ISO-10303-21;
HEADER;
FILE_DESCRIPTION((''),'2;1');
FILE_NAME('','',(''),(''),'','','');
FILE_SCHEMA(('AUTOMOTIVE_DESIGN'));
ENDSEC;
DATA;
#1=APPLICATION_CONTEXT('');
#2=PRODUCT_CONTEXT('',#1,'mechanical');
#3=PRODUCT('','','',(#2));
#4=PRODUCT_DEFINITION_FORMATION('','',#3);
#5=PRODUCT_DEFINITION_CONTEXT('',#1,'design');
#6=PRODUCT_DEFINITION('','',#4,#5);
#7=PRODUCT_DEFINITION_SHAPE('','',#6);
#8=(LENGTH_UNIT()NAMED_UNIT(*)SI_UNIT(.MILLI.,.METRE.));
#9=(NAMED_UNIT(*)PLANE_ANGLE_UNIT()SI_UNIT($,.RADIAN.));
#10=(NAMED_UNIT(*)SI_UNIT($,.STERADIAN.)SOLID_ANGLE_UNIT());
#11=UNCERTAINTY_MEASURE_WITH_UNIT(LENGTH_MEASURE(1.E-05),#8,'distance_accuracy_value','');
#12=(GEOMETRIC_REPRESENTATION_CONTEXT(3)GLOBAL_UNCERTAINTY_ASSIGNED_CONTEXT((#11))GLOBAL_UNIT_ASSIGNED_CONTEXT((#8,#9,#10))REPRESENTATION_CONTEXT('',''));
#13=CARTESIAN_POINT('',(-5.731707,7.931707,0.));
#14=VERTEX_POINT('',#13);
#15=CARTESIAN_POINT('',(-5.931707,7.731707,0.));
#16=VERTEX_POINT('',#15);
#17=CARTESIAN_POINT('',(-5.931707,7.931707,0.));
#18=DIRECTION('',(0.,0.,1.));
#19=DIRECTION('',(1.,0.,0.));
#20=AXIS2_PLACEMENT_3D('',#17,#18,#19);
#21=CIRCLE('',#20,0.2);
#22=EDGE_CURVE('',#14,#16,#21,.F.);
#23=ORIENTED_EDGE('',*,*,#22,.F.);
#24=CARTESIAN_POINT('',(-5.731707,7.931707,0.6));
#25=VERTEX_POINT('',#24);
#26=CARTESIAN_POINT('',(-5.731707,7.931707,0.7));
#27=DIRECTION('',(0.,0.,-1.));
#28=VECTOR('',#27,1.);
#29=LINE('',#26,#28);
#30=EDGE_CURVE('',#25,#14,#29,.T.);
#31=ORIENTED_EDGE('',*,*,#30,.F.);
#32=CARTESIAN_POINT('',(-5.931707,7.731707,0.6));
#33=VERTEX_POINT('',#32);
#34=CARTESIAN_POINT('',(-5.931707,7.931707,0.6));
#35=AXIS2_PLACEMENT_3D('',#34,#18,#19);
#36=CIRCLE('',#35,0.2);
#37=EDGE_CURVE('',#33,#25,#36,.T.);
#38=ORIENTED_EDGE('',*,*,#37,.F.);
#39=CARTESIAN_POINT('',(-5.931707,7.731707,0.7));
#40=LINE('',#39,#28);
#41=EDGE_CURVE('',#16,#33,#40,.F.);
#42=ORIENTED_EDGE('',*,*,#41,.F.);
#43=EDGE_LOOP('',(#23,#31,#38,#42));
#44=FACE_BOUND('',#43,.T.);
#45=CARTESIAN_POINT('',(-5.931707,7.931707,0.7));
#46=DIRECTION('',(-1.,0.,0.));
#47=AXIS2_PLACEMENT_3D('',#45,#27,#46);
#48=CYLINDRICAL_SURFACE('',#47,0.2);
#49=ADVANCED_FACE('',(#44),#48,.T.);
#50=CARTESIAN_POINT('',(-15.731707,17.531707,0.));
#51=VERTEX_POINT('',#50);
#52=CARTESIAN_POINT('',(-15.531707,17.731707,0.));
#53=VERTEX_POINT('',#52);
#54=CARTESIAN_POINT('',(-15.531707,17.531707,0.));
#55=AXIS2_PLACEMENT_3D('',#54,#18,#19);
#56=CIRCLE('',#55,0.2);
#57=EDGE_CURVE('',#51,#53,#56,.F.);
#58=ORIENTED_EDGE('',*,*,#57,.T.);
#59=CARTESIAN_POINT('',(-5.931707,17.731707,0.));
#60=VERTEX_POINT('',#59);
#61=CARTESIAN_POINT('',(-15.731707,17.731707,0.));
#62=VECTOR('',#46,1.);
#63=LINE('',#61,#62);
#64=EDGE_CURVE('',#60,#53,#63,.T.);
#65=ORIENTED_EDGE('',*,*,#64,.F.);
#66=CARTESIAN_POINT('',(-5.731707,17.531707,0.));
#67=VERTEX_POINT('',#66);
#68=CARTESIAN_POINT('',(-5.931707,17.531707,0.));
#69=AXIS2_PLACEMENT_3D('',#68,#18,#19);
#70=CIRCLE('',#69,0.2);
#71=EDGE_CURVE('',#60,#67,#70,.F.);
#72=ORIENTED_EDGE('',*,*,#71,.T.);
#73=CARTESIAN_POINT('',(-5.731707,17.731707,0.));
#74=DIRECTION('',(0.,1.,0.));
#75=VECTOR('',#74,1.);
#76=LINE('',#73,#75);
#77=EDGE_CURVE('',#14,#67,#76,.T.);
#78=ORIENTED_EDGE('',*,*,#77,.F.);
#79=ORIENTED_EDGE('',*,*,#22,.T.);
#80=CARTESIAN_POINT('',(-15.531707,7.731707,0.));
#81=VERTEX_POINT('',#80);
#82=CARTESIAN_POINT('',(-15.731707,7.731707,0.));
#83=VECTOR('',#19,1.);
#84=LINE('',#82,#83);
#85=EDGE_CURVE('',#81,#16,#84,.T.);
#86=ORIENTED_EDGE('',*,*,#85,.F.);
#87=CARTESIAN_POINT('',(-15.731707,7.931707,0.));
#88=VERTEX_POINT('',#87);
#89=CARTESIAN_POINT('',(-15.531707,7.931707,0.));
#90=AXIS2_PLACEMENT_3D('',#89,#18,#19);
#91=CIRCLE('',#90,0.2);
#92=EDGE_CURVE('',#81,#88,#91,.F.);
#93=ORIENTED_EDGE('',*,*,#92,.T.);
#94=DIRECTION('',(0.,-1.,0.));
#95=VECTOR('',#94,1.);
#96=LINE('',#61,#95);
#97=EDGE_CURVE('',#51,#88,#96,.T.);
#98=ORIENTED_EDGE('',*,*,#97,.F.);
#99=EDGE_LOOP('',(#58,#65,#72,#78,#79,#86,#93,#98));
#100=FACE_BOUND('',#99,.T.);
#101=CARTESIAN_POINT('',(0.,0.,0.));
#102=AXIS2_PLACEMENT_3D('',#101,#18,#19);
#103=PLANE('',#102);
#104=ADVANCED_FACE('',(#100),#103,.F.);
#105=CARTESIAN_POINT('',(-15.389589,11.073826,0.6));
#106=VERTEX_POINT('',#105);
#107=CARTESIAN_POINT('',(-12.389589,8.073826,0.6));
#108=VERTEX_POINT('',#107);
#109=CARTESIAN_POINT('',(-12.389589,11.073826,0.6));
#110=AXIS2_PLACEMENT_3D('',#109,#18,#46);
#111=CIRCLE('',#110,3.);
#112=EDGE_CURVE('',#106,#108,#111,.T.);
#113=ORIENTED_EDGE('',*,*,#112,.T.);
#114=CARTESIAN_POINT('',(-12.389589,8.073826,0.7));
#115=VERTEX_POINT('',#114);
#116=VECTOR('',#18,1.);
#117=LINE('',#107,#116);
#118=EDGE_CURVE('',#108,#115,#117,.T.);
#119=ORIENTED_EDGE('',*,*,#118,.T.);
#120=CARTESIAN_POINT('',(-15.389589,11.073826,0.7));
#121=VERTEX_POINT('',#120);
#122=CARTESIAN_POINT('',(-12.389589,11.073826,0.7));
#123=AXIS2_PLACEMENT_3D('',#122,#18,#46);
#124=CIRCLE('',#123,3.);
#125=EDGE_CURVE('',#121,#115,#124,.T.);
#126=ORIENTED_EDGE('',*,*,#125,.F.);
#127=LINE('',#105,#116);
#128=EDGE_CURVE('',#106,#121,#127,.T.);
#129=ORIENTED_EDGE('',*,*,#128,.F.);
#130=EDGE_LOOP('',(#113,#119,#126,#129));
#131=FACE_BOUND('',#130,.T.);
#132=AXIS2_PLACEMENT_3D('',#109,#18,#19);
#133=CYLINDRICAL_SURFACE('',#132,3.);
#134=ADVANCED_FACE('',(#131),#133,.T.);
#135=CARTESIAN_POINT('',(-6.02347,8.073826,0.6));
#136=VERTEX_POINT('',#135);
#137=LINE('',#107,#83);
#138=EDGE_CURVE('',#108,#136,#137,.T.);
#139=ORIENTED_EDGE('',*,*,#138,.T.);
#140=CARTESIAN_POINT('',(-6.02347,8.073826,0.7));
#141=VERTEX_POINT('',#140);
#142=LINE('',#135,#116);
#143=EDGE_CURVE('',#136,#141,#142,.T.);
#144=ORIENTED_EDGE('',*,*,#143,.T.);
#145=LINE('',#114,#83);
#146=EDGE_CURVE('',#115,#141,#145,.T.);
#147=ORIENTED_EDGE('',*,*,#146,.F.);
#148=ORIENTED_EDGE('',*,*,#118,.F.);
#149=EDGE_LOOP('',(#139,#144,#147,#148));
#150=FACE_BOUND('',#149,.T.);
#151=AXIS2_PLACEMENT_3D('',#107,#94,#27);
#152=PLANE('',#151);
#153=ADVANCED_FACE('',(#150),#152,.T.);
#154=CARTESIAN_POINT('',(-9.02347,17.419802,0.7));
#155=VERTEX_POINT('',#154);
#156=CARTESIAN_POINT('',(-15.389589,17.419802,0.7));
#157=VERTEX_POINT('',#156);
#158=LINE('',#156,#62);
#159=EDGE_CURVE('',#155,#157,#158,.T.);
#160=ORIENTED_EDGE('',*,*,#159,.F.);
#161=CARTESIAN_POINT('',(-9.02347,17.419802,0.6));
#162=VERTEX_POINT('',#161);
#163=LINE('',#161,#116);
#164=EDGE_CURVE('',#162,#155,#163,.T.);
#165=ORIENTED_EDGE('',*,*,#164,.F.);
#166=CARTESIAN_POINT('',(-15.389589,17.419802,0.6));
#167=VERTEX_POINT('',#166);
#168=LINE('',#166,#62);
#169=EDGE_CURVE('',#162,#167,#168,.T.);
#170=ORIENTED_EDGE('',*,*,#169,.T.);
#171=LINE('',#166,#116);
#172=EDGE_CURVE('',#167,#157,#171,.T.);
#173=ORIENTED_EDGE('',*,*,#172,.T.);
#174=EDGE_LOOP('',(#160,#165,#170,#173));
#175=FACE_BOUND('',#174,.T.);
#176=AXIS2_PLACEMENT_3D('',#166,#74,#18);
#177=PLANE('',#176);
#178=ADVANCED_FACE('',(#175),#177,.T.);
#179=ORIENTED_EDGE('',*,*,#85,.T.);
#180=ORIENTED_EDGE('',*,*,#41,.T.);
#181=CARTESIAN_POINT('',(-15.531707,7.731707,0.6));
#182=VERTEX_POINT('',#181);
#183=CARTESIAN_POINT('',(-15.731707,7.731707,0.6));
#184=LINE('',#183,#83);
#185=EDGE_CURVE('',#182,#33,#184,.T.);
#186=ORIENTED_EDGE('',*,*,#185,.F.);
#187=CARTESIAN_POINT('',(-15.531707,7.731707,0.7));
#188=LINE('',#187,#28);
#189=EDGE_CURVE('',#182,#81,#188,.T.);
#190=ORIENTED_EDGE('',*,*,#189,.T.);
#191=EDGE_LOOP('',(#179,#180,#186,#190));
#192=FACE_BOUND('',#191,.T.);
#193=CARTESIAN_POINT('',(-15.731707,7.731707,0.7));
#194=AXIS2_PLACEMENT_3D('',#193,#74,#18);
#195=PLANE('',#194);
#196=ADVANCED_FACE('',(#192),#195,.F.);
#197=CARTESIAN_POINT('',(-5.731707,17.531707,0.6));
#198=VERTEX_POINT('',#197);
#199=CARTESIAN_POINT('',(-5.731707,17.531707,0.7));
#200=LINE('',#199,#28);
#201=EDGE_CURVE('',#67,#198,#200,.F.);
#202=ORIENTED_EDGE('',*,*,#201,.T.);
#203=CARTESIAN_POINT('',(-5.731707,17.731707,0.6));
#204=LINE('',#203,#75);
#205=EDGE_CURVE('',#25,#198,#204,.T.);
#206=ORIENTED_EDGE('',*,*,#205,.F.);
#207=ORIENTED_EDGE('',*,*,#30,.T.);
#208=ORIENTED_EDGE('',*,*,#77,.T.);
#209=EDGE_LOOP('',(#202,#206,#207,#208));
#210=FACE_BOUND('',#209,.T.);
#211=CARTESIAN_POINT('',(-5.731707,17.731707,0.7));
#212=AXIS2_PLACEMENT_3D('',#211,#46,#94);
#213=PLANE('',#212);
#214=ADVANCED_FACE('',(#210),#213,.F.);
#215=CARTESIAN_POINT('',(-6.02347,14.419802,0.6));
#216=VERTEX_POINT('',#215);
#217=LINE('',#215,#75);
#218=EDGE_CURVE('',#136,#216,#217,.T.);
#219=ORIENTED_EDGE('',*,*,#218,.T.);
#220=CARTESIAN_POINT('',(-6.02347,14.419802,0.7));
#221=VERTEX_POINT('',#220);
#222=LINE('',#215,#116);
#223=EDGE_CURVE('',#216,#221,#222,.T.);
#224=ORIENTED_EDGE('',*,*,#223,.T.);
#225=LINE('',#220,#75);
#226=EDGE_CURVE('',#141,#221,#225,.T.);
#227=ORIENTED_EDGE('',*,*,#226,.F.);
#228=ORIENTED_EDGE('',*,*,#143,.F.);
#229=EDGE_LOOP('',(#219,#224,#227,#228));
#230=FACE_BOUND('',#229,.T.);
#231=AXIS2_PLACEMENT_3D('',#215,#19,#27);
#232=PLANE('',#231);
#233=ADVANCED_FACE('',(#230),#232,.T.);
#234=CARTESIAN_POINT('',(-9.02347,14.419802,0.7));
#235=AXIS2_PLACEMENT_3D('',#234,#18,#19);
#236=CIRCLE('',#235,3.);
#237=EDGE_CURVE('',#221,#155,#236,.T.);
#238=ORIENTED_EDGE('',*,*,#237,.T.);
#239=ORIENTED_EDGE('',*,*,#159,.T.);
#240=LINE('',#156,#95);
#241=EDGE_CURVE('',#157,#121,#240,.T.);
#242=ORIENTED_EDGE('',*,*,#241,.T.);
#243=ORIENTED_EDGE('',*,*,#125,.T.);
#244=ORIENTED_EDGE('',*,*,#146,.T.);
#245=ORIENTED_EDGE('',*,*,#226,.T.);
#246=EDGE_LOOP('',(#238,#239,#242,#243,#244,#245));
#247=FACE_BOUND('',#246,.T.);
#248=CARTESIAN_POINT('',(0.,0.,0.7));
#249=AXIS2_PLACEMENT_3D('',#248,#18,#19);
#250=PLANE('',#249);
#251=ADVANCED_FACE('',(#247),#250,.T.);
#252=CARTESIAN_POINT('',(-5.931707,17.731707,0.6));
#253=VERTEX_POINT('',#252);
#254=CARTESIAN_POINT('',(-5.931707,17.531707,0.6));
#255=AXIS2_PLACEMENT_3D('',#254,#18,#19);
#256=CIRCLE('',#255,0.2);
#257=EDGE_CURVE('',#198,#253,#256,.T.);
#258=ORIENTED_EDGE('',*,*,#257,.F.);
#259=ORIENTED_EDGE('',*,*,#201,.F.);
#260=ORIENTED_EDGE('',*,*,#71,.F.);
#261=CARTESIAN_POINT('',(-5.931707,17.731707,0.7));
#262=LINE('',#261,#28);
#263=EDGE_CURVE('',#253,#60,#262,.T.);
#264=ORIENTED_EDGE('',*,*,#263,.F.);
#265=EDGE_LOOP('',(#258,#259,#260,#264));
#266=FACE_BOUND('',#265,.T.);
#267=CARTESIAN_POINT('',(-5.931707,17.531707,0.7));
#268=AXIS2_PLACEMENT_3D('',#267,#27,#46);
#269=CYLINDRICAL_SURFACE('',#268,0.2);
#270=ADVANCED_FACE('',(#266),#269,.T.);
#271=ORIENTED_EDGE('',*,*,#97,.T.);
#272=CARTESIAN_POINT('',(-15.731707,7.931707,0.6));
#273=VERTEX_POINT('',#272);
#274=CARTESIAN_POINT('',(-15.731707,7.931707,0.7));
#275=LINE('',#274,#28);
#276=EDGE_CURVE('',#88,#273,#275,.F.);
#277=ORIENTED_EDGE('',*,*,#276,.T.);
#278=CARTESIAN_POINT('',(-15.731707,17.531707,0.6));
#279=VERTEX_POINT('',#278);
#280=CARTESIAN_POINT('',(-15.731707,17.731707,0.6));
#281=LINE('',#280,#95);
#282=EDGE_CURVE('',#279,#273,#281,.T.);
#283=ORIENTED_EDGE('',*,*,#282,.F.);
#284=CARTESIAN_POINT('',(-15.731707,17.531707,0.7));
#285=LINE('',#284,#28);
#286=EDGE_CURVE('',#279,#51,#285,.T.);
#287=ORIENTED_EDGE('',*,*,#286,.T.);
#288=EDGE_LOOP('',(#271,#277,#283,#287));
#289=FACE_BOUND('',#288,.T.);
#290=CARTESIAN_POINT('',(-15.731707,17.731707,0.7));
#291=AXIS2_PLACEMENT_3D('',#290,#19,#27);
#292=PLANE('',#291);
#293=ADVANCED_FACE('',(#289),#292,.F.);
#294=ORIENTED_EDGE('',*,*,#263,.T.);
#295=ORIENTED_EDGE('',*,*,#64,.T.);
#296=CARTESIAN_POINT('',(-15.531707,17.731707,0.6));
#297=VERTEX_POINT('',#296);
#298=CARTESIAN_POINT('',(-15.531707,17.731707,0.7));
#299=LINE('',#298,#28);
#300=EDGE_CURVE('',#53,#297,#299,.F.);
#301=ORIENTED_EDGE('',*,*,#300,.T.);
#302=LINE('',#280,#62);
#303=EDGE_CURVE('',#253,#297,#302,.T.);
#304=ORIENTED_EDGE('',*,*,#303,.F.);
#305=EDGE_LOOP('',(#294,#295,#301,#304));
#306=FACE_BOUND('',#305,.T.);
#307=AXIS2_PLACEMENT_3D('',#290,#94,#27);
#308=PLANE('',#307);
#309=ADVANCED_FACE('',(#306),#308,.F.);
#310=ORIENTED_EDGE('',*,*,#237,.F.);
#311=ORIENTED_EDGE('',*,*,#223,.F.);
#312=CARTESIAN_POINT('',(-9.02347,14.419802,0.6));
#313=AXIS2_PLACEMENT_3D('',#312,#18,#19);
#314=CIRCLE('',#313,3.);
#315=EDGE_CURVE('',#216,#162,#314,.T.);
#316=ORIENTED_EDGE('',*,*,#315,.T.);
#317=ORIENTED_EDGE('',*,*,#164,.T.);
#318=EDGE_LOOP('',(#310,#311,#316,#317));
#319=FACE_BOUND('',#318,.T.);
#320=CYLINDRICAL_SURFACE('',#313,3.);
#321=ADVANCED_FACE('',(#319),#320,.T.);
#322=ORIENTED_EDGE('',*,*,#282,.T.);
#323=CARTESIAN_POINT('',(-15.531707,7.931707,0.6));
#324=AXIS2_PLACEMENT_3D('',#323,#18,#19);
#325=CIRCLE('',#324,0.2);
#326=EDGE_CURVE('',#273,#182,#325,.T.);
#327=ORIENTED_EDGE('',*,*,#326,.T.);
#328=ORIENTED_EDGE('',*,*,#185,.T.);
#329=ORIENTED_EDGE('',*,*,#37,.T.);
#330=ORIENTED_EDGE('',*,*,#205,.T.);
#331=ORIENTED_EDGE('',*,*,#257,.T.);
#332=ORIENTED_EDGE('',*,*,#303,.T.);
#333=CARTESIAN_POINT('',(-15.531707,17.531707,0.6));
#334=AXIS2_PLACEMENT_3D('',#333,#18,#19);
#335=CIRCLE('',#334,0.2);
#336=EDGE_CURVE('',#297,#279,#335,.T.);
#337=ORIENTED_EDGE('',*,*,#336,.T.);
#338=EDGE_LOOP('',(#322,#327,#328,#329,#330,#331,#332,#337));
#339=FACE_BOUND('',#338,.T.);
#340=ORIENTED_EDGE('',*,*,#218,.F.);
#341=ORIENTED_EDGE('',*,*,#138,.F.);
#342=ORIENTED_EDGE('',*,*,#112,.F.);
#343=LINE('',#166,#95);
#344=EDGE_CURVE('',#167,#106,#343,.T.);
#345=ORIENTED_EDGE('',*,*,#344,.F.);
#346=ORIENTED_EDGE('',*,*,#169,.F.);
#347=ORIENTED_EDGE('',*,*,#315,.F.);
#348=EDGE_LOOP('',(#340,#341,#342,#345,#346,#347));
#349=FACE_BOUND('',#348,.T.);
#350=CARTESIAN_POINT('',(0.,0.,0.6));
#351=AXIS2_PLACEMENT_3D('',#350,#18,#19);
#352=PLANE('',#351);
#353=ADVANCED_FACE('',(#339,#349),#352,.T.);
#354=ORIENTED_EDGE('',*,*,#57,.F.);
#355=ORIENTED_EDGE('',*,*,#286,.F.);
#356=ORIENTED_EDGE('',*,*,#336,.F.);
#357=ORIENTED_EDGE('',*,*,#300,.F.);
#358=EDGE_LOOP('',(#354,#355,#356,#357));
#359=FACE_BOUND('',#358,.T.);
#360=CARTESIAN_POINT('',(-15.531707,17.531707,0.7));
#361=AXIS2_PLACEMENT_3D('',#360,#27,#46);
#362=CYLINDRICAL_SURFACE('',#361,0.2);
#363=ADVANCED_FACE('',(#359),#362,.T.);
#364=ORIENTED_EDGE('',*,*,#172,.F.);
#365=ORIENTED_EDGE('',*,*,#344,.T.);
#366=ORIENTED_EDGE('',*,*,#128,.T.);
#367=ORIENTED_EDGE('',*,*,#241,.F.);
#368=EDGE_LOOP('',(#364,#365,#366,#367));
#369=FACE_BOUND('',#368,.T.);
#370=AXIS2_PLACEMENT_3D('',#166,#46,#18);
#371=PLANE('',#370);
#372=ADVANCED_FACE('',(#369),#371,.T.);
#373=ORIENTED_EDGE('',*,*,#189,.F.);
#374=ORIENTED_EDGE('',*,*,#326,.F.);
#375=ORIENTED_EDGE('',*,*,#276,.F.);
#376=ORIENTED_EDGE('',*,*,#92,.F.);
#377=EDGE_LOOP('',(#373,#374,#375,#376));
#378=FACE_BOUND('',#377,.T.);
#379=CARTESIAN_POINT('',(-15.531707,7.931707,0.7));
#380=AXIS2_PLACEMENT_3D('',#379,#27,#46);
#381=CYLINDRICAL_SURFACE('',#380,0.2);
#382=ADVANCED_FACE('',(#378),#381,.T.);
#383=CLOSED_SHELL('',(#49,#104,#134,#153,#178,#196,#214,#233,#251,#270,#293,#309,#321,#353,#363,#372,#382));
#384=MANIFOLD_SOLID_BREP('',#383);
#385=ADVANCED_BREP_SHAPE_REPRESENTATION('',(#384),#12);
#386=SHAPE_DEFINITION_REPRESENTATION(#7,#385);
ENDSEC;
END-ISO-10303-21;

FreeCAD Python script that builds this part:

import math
import FreeCAD as App
import Part
import Sketcher

V = App.Vector
Q = App.Units.Quantity


def edges_at(feature, points):
    """Names of the edges that pass closest to the given points."""
    edges = feature.Shape.Edges
    near = lambda p: min(range(len(edges)), key=lambda i: edges[i].distToShape(Part.Vertex(*p))[0])
    return sorted({f"Edge{near(p) + 1}" for p in points})


def add_polygon(sketch, points):
    """Adds a closed chain of lines whose ends are joined by coincident constraints."""
    first, n = sketch.GeometryCount, len(points)
    for a, b in zip(points, points[1:] + points[:1]):
        sketch.addGeometry(Part.LineSegment(App.Vector(*a, 0), App.Vector(*b, 0)), False)
    for i in range(n):
        sketch.addConstraint(Sketcher.Constraint("Coincident", first + i, 2, first + (i + 1) % n, 1))

doc = App.newDocument("Part")
body = doc.addObject("PartDesign::Body", "Body")

sketch1 = doc.addObject("Sketcher::SketchObject", "Sketch")
body.addObject(sketch1)
sketch1.AttachmentSupport = (doc.XY_Plane, [""])
sketch1.MapMode = "FlatFace"
add_polygon(sketch1, [(-15.731707, 17.731707), (-15.731707, 7.731707), (-5.731707, 7.731707), (-5.731707, 17.731707)])
sketch1.addConstraint([
    Sketcher.Constraint("Vertical", 0),
    Sketcher.Constraint("Horizontal", 1),
    Sketcher.Constraint("Vertical", 2),
    Sketcher.Constraint("Horizontal", 3),
    Sketcher.Constraint("Equal", 3, 0),
    Sketcher.Constraint("DistanceX", 1, 1, 1, 2, Q("10 mm")),
    Sketcher.Constraint("DistanceX", 0, 2, -1, 1, Q("15.731707 mm")),
    Sketcher.Constraint("DistanceY", -1, 1, 0, 2, Q("7.731707 mm")),
])
pad1 = doc.addObject("PartDesign::Pad", "Pad")
body.addObject(pad1)
pad1.Profile = sketch1
pad1.Length = 0.7

sketch2 = doc.addObject("Sketcher::SketchObject", "Sketch001")
body.addObject(sketch2)
sketch2.AttachmentSupport = (doc.XY_Plane, [""])
sketch2.MapMode = "FlatFace"
sketch2.AttachmentOffset = App.Placement(V(0, 0, 0.7), App.Rotation())
add_polygon(sketch2, [(-15.731707, 17.731707), (-15.731707, 7.731707), (-5.731707, 7.731707), (-5.731707, 17.731707)])
sketch2.addGeometry(Part.LineSegment(V(-15.389589, 11.073826, 0), V(-15.389589, 17.419802, 0)), False)
sketch2.addGeometry(Part.LineSegment(V(-15.389589, 17.419802, 0), V(-9.02347, 17.419802, 0)), False)
sketch2.addGeometry(Part.ArcOfCircle(Part.Circle(V(-9.02347, 14.419802, 0), V(0, 0, 1), 3), math.radians(0), math.radians(90)), False)
sketch2.addGeometry(Part.LineSegment(V(-6.02347, 14.419802, 0), V(-6.02347, 8.073826, 0)), False)
sketch2.addGeometry(Part.LineSegment(V(-6.02347, 8.073826, 0), V(-12.389589, 8.073826, 0)), False)
sketch2.addGeometry(Part.ArcOfCircle(Part.Circle(V(-12.389589, 11.073826, 0), V(0, 0, 1), 3), math.radians(180), math.radians(270)), False)
sketch2.addConstraint([
    Sketcher.Constraint("Coincident", 4, 2, 5, 1),
    Sketcher.Constraint("Tangent", 5, 2, 6, 2),
    Sketcher.Constraint("Tangent", 6, 1, 7, 1),
    Sketcher.Constraint("Coincident", 7, 2, 8, 1),
    Sketcher.Constraint("Tangent", 8, 2, 9, 2),
    Sketcher.Constraint("Tangent", 9, 1, 4, 1),
    Sketcher.Constraint("Vertical", 0),
    Sketcher.Constraint("Horizontal", 1),
    Sketcher.Constraint("Vertical", 2),
    Sketcher.Constraint("Horizontal", 3),
    Sketcher.Constraint("Vertical", 4),
    Sketcher.Constraint("Horizontal", 5),
    Sketcher.Constraint("Vertical", 7),
    Sketcher.Constraint("Horizontal", 8),
    Sketcher.Constraint("Equal", 6, 9),
    Sketcher.Constraint("Equal", 3, 0),
    Sketcher.Constraint("Radius", 6, Q("3 mm")),
    Sketcher.Constraint("DistanceX", 1, 1, 1, 2, Q("10 mm")),
    Sketcher.Constraint("DistanceX", 5, 1, 5, 2, Q("6.366119 mm")),
    Sketcher.Constraint("DistanceY", 4, 1, 4, 2, Q("6.345977 mm")),
    Sketcher.Constraint("DistanceX", 6, 3, -1, 1, Q("9.02347 mm")),
    Sketcher.Constraint("DistanceX", 0, 2, 9, 3, Q("3.342118 mm")),
    Sketcher.Constraint("DistanceY", 0, 2, 9, 3, Q("3.342118 mm")),
    Sketcher.Constraint("DistanceY", -1, 1, 6, 3, Q("14.419802 mm")),
])
pocket1 = doc.addObject("PartDesign::Pocket", "Pocket")
body.addObject(pocket1)
pocket1.Profile = sketch2
pocket1.Length = 0.1
doc.recompute()

fillet = doc.addObject("PartDesign::Fillet", "Fillet")
body.addObject(fillet)
fillet.Base = (pocket1, edges_at(pocket1, [
    (-15.732, 17.732, 0.3),
    (-5.732, 17.732, 0.3),
    (-5.732, 7.732, 0.3),
    (-15.732, 7.732, 0.3),
]))
fillet.Radius = 0.2

doc.recompute()
